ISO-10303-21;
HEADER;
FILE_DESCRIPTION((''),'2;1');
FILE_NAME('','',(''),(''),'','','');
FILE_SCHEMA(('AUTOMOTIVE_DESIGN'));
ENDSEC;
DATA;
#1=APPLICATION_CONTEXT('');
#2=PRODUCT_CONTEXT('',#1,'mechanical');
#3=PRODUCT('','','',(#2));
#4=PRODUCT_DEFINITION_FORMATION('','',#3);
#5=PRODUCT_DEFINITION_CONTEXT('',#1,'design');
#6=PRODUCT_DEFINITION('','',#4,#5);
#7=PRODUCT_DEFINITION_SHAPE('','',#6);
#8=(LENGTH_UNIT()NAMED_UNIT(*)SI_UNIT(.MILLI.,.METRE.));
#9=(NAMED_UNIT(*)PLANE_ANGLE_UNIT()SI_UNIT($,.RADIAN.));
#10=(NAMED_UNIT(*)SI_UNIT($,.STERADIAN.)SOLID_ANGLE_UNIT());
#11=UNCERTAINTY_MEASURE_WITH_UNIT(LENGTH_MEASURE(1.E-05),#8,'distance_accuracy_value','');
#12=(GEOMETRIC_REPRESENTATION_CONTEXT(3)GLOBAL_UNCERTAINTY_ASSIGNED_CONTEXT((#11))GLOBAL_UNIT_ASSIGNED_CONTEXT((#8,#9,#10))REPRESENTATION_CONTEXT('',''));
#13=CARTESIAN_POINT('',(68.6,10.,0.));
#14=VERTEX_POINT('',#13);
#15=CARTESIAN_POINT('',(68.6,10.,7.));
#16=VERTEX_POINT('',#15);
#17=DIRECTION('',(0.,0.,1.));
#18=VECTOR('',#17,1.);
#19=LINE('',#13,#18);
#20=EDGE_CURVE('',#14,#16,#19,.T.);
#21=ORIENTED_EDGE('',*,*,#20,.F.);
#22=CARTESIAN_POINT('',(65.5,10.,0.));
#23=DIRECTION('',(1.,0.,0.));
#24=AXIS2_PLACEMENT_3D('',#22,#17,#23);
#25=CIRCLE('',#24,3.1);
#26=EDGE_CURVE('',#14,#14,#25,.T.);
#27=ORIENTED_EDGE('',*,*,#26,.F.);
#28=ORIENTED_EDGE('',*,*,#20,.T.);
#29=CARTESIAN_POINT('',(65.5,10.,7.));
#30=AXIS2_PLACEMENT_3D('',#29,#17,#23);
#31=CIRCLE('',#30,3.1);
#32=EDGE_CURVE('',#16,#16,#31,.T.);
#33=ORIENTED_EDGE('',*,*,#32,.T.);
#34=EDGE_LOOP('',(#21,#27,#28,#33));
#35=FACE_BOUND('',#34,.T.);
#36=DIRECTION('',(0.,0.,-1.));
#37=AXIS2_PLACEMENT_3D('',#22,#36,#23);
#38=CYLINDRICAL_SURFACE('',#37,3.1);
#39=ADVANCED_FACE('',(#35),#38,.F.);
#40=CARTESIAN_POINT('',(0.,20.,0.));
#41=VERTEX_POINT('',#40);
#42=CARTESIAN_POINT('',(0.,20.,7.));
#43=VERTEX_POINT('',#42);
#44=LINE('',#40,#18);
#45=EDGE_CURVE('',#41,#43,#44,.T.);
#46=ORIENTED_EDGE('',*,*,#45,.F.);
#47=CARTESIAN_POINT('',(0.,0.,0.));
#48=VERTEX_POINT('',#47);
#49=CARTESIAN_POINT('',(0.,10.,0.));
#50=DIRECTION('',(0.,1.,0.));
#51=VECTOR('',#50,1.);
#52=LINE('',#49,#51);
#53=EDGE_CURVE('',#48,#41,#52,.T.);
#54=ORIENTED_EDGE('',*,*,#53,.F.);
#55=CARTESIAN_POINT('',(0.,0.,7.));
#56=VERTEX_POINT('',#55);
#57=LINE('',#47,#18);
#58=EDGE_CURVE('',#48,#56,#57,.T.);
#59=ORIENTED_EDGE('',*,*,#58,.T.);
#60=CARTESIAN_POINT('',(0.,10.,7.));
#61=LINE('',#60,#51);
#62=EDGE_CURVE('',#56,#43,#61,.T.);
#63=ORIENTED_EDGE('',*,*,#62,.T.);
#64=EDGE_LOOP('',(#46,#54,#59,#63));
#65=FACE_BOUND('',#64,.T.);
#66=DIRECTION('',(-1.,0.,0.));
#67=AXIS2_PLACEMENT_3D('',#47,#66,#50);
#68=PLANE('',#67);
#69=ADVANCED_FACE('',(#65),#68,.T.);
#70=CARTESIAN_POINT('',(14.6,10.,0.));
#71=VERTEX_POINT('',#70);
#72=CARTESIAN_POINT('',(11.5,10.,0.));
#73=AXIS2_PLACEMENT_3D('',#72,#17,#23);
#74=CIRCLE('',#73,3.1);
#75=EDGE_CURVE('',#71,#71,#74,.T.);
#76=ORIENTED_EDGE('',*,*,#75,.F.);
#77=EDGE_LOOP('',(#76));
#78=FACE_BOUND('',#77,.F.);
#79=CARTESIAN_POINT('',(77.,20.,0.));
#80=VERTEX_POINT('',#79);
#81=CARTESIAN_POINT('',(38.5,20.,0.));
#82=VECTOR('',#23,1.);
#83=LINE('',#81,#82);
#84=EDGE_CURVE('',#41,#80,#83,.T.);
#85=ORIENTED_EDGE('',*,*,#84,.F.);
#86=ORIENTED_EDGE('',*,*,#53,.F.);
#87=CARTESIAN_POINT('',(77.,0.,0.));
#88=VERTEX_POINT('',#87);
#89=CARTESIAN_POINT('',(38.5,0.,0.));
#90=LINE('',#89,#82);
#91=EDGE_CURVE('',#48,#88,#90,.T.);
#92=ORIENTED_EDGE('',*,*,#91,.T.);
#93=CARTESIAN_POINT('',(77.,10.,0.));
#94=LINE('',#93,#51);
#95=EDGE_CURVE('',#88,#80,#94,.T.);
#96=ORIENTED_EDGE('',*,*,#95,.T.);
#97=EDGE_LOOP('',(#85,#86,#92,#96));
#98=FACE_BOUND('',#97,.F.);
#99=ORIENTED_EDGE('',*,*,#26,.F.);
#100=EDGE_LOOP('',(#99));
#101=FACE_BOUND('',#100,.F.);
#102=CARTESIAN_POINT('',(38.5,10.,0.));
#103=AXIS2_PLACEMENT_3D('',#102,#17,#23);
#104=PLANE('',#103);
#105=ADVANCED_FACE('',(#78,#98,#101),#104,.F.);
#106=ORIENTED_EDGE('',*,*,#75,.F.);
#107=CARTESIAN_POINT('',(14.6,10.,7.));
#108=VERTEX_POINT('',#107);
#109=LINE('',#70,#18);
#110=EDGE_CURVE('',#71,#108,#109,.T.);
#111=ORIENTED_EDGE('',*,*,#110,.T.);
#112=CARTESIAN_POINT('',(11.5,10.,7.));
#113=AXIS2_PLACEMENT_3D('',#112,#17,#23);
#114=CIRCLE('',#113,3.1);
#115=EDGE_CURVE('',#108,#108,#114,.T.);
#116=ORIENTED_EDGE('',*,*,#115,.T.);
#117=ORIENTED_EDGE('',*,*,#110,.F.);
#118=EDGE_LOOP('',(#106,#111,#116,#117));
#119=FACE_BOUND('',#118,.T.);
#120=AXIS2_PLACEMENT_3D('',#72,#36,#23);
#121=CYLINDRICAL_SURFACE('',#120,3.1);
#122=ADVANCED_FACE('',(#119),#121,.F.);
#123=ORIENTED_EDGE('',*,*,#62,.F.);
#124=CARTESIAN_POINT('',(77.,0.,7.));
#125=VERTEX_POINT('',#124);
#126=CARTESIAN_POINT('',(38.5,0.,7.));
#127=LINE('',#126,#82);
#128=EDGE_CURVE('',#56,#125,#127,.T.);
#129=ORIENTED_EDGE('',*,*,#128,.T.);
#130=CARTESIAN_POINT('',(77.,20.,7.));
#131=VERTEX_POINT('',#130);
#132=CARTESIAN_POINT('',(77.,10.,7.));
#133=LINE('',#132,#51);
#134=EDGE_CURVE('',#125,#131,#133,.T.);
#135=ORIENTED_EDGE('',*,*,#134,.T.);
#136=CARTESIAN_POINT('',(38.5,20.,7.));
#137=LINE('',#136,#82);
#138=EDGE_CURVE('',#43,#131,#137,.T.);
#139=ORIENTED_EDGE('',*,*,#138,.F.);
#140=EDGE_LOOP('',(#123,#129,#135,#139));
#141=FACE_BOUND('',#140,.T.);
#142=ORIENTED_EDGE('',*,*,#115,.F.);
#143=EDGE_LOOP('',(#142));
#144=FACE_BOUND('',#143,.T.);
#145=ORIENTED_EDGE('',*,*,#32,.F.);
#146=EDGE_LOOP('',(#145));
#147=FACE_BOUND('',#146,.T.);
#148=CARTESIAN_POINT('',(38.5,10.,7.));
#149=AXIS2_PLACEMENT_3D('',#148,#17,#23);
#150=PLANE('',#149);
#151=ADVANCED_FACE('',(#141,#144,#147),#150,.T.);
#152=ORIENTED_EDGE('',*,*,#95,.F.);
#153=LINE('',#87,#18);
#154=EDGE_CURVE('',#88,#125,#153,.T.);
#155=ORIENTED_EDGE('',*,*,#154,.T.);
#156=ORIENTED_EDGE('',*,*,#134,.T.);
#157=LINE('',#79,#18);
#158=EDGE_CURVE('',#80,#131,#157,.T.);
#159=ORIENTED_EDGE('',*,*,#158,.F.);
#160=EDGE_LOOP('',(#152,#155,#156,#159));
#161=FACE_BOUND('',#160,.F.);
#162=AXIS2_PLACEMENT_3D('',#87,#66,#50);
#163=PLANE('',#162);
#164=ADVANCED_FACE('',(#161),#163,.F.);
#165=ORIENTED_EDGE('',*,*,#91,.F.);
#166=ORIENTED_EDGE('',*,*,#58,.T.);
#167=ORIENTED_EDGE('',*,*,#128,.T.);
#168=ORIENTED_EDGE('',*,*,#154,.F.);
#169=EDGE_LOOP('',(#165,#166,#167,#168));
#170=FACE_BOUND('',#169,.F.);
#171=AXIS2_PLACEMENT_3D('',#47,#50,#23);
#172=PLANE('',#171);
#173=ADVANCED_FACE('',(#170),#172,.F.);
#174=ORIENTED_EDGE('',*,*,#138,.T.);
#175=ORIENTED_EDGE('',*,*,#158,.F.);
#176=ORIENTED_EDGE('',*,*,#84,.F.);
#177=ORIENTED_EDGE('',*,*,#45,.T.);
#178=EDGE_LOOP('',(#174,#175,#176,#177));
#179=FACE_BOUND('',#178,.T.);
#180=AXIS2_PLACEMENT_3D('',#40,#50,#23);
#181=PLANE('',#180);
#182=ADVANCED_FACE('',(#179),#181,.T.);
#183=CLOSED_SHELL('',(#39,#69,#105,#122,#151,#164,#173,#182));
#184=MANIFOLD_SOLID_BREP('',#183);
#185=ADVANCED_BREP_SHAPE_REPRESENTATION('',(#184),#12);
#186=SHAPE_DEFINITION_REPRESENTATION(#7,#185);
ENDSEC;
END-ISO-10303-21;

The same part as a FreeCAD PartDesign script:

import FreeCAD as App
import Part
import Sketcher
Q = App.Units.Quantity

doc = App.newDocument("Part")
body = doc.addObject("PartDesign::Body", "Body")

# Sketch on XY plane
sketch1 = body.newObject("Sketcher::SketchObject", "Sketch")
sketch1.AttachmentSupport = (doc.getObject("XY_Plane"), [""])
sketch1.MapMode = "FlatFace"
sketch1.addGeometry([
    Part.LineSegment(App.Vector(0, 20, 0), App.Vector(0, 0, 0)),  # 0
    Part.LineSegment(App.Vector(0, 0, 0), App.Vector(77, 0, 0)),  # 1
    Part.LineSegment(App.Vector(77, 0, 0), App.Vector(77, 20, 0)),  # 2
    Part.LineSegment(App.Vector(77, 20, 0), App.Vector(0, 20, 0)),  # 3
    Part.Circle(App.Vector(11.5, 10, 0), App.Vector(0, 0, 1), 3.1),  # 4
    Part.Circle(App.Vector(65.5, 10, 0), App.Vector(0, 0, 1), 3.1),  # 5
], False)
sketch1.addConstraint([
    Sketcher.Constraint("Coincident", 0, 2, 1, 1),
    Sketcher.Constraint("Coincident", 1, 2, 2, 1),
    Sketcher.Constraint("Coincident", 2, 2, 3, 1),
    Sketcher.Constraint("Coincident", 3, 2, 0, 1),
    Sketcher.Constraint("Vertical", 0),
    Sketcher.Constraint("Horizontal", 1),
    Sketcher.Constraint("Vertical", 2),
    Sketcher.Constraint("Horizontal", 3),
    Sketcher.Constraint("Coincident", 0, 2, -1, 1),
    Sketcher.Constraint("Equal", 4, 5),
    Sketcher.Constraint("Horizontal", 4, 3, 5, 3),
    Sketcher.Constraint("Diameter", 4, Q("6.2 mm")),
    Sketcher.Constraint("DistanceX", 1, 1, 1, 2, Q("77 mm")),
    Sketcher.Constraint("DistanceY", 0, 2, 0, 1, Q("20 mm")),
    Sketcher.Constraint("DistanceY", -1, 1, 4, 3, Q("10 mm")),
    Sketcher.Constraint("DistanceX", 4, 3, 5, 3, Q("54 mm")),
    Sketcher.Constraint("DistanceX", -1, 1, 4, 3, Q("11.5 mm")),
])
pad1 = body.newObject("PartDesign::Pad", "Pad")
pad1.Profile = sketch1
pad1.Length = 7

doc.recompute()
